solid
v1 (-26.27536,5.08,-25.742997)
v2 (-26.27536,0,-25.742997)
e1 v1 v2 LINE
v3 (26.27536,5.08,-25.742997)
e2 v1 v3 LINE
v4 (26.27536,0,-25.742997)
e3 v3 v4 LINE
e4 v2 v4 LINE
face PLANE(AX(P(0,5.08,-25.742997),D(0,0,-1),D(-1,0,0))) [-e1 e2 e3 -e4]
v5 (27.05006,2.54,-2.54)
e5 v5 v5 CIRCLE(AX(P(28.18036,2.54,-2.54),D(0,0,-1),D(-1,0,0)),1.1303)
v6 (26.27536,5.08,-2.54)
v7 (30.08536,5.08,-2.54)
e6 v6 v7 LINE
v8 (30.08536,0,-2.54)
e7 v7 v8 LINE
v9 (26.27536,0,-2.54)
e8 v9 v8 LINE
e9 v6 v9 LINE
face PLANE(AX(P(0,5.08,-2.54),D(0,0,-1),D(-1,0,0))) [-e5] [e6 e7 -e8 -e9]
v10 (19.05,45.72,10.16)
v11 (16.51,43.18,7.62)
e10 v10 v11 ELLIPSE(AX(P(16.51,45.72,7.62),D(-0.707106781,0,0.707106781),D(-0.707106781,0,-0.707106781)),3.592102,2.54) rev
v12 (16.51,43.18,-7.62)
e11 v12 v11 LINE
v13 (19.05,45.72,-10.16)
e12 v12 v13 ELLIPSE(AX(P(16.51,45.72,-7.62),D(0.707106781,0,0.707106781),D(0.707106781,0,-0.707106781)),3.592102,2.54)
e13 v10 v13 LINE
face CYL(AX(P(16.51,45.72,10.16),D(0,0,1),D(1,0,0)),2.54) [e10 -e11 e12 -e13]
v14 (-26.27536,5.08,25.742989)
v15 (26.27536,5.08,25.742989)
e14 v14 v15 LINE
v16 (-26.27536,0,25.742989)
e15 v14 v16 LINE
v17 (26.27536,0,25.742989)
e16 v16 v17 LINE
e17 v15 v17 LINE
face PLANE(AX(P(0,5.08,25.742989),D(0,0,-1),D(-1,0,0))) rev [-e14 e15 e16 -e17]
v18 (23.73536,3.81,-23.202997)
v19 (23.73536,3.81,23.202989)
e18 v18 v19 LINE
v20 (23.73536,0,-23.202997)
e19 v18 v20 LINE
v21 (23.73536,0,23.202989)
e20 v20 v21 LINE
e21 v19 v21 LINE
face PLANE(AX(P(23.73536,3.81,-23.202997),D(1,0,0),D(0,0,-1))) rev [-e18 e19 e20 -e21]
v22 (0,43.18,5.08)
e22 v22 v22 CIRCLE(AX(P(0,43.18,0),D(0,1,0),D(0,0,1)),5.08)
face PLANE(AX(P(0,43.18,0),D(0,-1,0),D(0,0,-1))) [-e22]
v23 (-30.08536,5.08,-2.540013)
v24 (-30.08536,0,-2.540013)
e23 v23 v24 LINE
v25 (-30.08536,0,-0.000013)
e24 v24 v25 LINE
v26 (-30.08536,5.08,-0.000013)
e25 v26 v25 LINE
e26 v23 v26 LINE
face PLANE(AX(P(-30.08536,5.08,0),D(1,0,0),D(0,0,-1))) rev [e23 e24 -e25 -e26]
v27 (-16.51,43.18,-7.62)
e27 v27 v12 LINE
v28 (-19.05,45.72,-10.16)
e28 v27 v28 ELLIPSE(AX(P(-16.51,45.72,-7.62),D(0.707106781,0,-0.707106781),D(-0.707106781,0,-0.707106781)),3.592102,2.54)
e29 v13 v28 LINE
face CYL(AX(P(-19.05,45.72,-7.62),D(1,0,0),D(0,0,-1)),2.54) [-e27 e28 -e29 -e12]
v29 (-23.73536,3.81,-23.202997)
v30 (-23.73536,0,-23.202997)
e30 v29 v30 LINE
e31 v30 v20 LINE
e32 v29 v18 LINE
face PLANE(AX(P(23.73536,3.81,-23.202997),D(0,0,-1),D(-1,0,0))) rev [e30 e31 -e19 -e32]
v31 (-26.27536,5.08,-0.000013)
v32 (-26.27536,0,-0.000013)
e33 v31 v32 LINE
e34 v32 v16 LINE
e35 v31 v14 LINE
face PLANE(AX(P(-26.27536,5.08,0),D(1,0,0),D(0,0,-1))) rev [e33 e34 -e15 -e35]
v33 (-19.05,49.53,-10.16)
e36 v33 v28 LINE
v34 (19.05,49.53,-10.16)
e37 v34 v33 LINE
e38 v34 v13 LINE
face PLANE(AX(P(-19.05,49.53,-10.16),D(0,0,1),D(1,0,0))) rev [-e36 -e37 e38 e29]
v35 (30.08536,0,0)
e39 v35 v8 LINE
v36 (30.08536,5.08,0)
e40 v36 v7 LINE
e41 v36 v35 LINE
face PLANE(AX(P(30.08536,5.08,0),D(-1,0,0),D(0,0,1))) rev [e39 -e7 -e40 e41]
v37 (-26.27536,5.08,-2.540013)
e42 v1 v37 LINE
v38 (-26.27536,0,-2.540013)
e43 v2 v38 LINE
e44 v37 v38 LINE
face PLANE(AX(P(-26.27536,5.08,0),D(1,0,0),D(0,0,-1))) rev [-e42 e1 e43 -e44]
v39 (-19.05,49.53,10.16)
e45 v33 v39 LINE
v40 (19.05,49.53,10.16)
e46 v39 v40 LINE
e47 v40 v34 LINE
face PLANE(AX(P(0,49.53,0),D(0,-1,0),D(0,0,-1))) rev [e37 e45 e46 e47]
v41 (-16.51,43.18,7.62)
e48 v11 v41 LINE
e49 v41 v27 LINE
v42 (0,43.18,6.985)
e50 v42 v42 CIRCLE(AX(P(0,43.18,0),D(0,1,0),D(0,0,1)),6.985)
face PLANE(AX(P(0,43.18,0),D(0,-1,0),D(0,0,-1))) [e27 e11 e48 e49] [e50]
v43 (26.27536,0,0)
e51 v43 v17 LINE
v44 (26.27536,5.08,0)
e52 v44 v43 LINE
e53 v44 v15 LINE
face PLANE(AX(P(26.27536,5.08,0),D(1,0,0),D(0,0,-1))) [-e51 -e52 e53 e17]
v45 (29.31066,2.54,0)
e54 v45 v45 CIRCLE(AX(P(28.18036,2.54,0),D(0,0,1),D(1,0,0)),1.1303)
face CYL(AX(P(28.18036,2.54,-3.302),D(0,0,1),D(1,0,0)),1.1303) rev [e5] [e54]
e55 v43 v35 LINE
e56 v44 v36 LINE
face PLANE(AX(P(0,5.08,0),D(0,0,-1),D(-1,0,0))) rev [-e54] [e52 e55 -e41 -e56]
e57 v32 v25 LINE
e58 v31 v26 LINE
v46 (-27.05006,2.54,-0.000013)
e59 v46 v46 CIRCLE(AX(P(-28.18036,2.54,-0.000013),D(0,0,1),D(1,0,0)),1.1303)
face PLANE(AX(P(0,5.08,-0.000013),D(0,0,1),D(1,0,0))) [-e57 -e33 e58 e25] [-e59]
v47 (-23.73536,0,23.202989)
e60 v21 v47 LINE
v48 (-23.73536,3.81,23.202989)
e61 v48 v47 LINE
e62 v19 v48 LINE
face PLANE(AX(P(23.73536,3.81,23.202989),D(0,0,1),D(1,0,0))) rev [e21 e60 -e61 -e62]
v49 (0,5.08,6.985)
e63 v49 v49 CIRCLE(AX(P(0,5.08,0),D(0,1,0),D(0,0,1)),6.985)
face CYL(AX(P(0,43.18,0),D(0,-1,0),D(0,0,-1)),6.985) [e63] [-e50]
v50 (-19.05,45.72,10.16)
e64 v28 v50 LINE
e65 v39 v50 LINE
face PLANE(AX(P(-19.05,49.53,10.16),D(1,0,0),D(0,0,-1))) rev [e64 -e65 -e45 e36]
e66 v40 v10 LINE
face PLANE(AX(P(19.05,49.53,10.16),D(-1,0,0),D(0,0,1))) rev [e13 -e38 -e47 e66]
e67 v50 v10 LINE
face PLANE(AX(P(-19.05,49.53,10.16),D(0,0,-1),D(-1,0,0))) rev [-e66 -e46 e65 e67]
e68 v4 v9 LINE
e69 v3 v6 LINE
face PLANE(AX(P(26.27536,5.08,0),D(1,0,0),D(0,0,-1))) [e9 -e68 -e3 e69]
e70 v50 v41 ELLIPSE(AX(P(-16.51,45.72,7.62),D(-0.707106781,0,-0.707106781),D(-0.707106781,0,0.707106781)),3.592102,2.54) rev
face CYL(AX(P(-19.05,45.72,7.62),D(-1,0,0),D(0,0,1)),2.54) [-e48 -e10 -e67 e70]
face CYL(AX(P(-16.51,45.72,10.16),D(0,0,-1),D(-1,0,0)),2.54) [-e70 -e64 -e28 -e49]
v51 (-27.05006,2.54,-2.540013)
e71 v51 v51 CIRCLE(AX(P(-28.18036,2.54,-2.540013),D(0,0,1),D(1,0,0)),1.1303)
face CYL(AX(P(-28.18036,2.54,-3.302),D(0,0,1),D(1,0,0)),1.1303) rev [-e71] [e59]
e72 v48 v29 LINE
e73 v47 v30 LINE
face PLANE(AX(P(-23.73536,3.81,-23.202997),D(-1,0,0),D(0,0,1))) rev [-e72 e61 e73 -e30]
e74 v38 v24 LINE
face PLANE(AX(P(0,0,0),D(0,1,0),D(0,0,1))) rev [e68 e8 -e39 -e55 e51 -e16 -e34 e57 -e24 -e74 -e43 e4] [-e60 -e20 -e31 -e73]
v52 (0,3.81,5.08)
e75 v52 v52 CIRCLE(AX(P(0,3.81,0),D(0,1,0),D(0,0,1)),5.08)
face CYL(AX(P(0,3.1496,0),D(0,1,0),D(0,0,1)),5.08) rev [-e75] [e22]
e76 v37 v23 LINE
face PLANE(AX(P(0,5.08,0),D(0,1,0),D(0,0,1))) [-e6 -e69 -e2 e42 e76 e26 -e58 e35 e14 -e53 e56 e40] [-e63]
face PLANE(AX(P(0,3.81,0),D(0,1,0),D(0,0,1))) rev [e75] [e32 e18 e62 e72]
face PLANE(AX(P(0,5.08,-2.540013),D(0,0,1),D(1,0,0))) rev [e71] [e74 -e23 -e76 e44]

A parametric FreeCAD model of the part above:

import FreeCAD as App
import Part
import Sketcher

V = App.Vector
Q = App.Units.Quantity


def edges_at(feature, points):
    """Names of the edges that pass closest to the given points."""
    edges = feature.Shape.Edges
    near = lambda p: min(range(len(edges)), key=lambda i: edges[i].distToShape(Part.Vertex(*p))[0])
    return sorted({f"Edge{near(p) + 1}" for p in points})


def add_polygon(sketch, points):
    """Adds a closed chain of lines whose ends are joined by coincident constraints."""
    first, n = sketch.GeometryCount, len(points)
    for a, b in zip(points, points[1:] + points[:1]):
        sketch.addGeometry(Part.LineSegment(App.Vector(*a, 0), App.Vector(*b, 0)), False)
    for i in range(n):
        sketch.addConstraint(Sketcher.Constraint("Coincident", first + i, 2, first + (i + 1) % n, 1))

doc = App.newDocument("Part")
params = doc.addObject("Spreadsheet::Sheet", "Params")
for row, (alias, value) in enumerate([
    ("sketch1_height", "0.1 in"),
    ("sketch1_width", "0.15 in"),
    ("pad1_length", "0.2 in"),
    ("pocket1_length", "0.15 in"),
    ("sketch3_diameter", "0.089 in"),
    ("pocket2_length", "0.13 in"),
    ("sketch4_diameter", "0.4 in"),
    ("pocket3_length", "0.076 in"),
    ("sketch5_diameter", "0.55 in"),
    ("pad2_length", "1.5 in"),
    ("sketch6_diameter", "0.4 in"),
    ("pocket4_length", "1.5 in"),
    ("sketch7_width", "1.5 in"),
    ("sketch7_height", "0.8 in"),
    ("pad3_length", "0.25 in"),
    ("fillet_radius", "0.1 in"),
], start=1):
    params.set(f"A{row}", alias)
    params.set(f"B{row}", "=" + value)
    params.setAlias(f"B{row}", alias)

body = doc.addObject("PartDesign::Body", "Body")

sketch1 = doc.addObject("Sketcher::SketchObject", "Sketch")
body.addObject(sketch1)
sketch1.AttachmentSupport = (doc.XZ_Plane, [""])
sketch1.MapMode = "FlatFace"
add_polygon(sketch1, [(-26.3, 0), (-26.3, 25.7), (26.3, 25.7), (26.3, 0), (30.1, 0), (30.1, -2.5), (26.3, -2.5), (26.3, -25.7), (-26.3, -25.7), (-26.3, -2.5), (-30.1, -2.5), (-30.1, 0)])
sketch1.addConstraint(Sketcher.Constraint("Vertical", 0))
sketch1.addConstraint(Sketcher.Constraint("Horizontal", 1))
sketch1.addConstraint(Sketcher.Constraint("Vertical", 2))
sketch1.addConstraint(Sketcher.Constraint("Horizontal", 3))
sketch1.addConstraint(Sketcher.Constraint("Vertical", 4))
sketch1.addConstraint(Sketcher.Constraint("Horizontal", 5))
sketch1.addConstraint(Sketcher.Constraint("Vertical", 6))
sketch1.addConstraint(Sketcher.Constraint("Horizontal", 7))
sketch1.addConstraint(Sketcher.Constraint("Vertical", 8))
sketch1.addConstraint(Sketcher.Constraint("Horizontal", 9))
sketch1.addConstraint(Sketcher.Constraint("Vertical", 10))
sketch1.addConstraint(Sketcher.Constraint("Horizontal", 11))
sketch1.addConstraint(Sketcher.Constraint("Symmetric", 0, 2, 6, 2, -1, 1))
sketch1.addConstraint(Sketcher.Constraint("PointOnObject", 2, 2, -1))
sketch1.addConstraint(Sketcher.Constraint("Vertical", 2, 2, 5, 2))
sketch1.addConstraint(Sketcher.Constraint("Vertical", 0, 2, 7, 2))
sketch1.addConstraint(Sketcher.Constraint("Equal", 5, 9))
sketch1.addConstraint(Sketcher.Constraint("Equal", 4, 10))
sketch1.addConstraint(Sketcher.Constraint("DistanceY", 4, 2, 4, 1, Q("0.1 in")))
sketch1.addConstraint(Sketcher.Constraint("DistanceX", 3, 1, 3, 2, Q("0.15 in")))
sketch1.addConstraint(Sketcher.Constraint("DistanceX", 1, 1, 1, 2, 52.55072))
sketch1.addConstraint(Sketcher.Constraint("DistanceY", 8, 1, 8, 2, 23.20298))
sketch1.addConstraint(Sketcher.Constraint("DistanceY", 0, 1, 0, 2, 25.743005))
sketch1.setExpression("Constraints[30]", "Params.sketch1_height")
sketch1.setExpression("Constraints[31]", "Params.sketch1_width")
pad1 = doc.addObject("PartDesign::Pad", "Pad")
body.addObject(pad1)
pad1.Profile = sketch1
pad1.setExpression("Length", "Params.pad1_length")
pad1.Reversed = True

sketch2 = doc.addObject("Sketcher::SketchObject", "Sketch001")
body.addObject(sketch2)
sketch2.AttachmentSupport = (doc.XZ_Plane, [""])
sketch2.MapMode = "FlatFace"
add_polygon(sketch2, [(-24, 23), (-24, -23), (24, -23), (24, 23)])
sketch2.addConstraint(Sketcher.Constraint("Vertical", 0))
sketch2.addConstraint(Sketcher.Constraint("Horizontal", 1))
sketch2.addConstraint(Sketcher.Constraint("Vertical", 2))
sketch2.addConstraint(Sketcher.Constraint("Horizontal", 3))
sketch2.addConstraint(Sketcher.Constraint("Symmetric", 0, 2, 2, 2, -1, 1))
sketch2.addConstraint(Sketcher.Constraint("DistanceX", 1, 1, 1, 2, 47.47072))
sketch2.addConstraint(Sketcher.Constraint("DistanceY", 0, 2, 0, 1, 46.405985))
pocket1 = doc.addObject("PartDesign::Pocket", "Pocket")
body.addObject(pocket1)
pocket1.Profile = sketch2
pocket1.setExpression("Length", "Params.pocket1_length")

sketch3 = doc.addObject("Sketcher::SketchObject", "Sketch002")
body.addObject(sketch3)
sketch3.AttachmentSupport = (doc.XY_Plane, [""])
sketch3.MapMode = "FlatFace"
sketch3.addGeometry(Part.Circle(V(28.2, 2.5, 0), V(0, 0, 1), 1.1), False)
sketch3.addGeometry(Part.Circle(V(-28.2, 2.5, 0), V(0, 0, 1), 1.1), False)
sketch3.addConstraint(Sketcher.Constraint("Equal", 0, 1))
sketch3.addConstraint(Sketcher.Constraint("Symmetric", 0, 3, 1, 3, -2))
sketch3.addConstraint(Sketcher.Constraint("Diameter", 0, Q("0.089 in")))
sketch3.addConstraint(Sketcher.Constraint("DistanceY", -1, 1, 0, 3, Q("0.1 in")))
sketch3.addConstraint(Sketcher.Constraint("DistanceX", -1, 1, 0, 3, 28.18036))
sketch3.setExpression("Constraints[2]", "Params.sketch3_diameter")
pocket2 = doc.addObject("PartDesign::Pocket", "Pocket001")
body.addObject(pocket2)
pocket2.Profile = sketch3
pocket2.setExpression("Length", "Params.pocket2_length")

sketch4 = doc.addObject("Sketcher::SketchObject", "Sketch003")
body.addObject(sketch4)
sketch4.AttachmentSupport = (doc.XZ_Plane, [""])
sketch4.MapMode = "FlatFace"
sketch4.AttachmentOffset = App.Placement(V(0, 0, -0.2 * 25.4), App.Rotation())
sketch4.addGeometry(Part.Circle(V(0, 0, 0), V(0, 0, 1), 5), False)
sketch4.addConstraint(Sketcher.Constraint("Coincident", 0, 3, -1, 1))
sketch4.addConstraint(Sketcher.Constraint("Diameter", 0, Q("0.4 in")))
sketch4.setExpression("Constraints[1]", "Params.sketch4_diameter")
pocket3 = doc.addObject("PartDesign::Pocket", "Pocket002")
body.addObject(pocket3)
pocket3.Profile = sketch4
pocket3.setExpression("Length", "Params.pocket3_length")
pocket3.Reversed = True

sketch5 = doc.addObject("Sketcher::SketchObject", "Sketch004")
body.addObject(sketch5)
sketch5.AttachmentSupport = (doc.XZ_Plane, [""])
sketch5.MapMode = "FlatFace"
sketch5.AttachmentOffset = App.Placement(V(0, 0, -0.2 * 25.4), App.Rotation())
sketch5.addGeometry(Part.Circle(V(0, 0, 0), V(0, 0, 1), 7), False)
sketch5.addConstraint(Sketcher.Constraint("Coincident", 0, 3, -1, 1))
sketch5.addConstraint(Sketcher.Constraint("Diameter", 0, Q("0.55 in")))
sketch5.setExpression("Constraints[1]", "Params.sketch5_diameter")
pad2 = doc.addObject("PartDesign::Pad", "Pad001")
body.addObject(pad2)
pad2.Profile = sketch5
pad2.setExpression("Length", "Params.pad2_length")
pad2.Reversed = True

sketch6 = doc.addObject("Sketcher::SketchObject", "Sketch005")
body.addObject(sketch6)
sketch6.AttachmentSupport = (doc.XZ_Plane, [""])
sketch6.MapMode = "FlatFace"
sketch6.AttachmentOffset = App.Placement(V(0, 0, -1.7 * 25.4), App.Rotation())
sketch6.addGeometry(Part.Circle(V(0, 0, 0), V(0, 0, 1), 5), False)
sketch6.addConstraint(Sketcher.Constraint("Coincident", 0, 3, -1, 1))
sketch6.addConstraint(Sketcher.Constraint("Diameter", 0, Q("0.4 in")))
sketch6.setExpression("Constraints[1]", "Params.sketch6_diameter")
pocket4 = doc.addObject("PartDesign::Pocket", "Pocket003")
body.addObject(pocket4)
pocket4.Profile = sketch6
pocket4.setExpression("Length", "Params.pocket4_length")
pocket4.Reversed = True

sketch7 = doc.addObject("Sketcher::SketchObject", "Sketch006")
body.addObject(sketch7)
sketch7.AttachmentSupport = (doc.XZ_Plane, [""])
sketch7.MapMode = "FlatFace"
sketch7.AttachmentOffset = App.Placement(V(0, 0, -1.7 * 25.4), App.Rotation())
add_polygon(sketch7, [(-19, -10), (-19, 10), (19, 10), (19, -10)])
sketch7.addConstraint(Sketcher.Constraint("Vertical", 0))
sketch7.addConstraint(Sketcher.Constraint("Horizontal", 1))
sketch7.addConstraint(Sketcher.Constraint("Vertical", 2))
sketch7.addConstraint(Sketcher.Constraint("Horizontal", 3))
sketch7.addConstraint(Sketcher.Constraint("Symmetric", 0, 2, 2, 2, -1, 1))
sketch7.addConstraint(Sketcher.Constraint("DistanceX", 1, 1, 1, 2, Q("1.5 in")))
sketch7.addConstraint(Sketcher.Constraint("DistanceY", 0, 1, 0, 2, Q("0.8 in")))
sketch7.setExpression("Constraints[9]", "Params.sketch7_width")
sketch7.setExpression("Constraints[10]", "Params.sketch7_height")
pad3 = doc.addObject("PartDesign::Pad", "Pad002")
body.addObject(pad3)
pad3.Profile = sketch7
pad3.setExpression("Length", "Params.pad3_length")
pad3.Reversed = True
doc.recompute()

fillet = doc.addObject("PartDesign::Fillet", "Fillet")
body.addObject(fillet)
fillet.Base = (pad3, edges_at(pad3, [
    (-19.05, 43.18, 0),
    (0, 43.18, 10.16),
    (19.05, 43.18, 0),
    (0, 43.18, -10.16),
]))
fillet.setExpression("Radius", "Params.fillet_radius")

doc.recompute()
